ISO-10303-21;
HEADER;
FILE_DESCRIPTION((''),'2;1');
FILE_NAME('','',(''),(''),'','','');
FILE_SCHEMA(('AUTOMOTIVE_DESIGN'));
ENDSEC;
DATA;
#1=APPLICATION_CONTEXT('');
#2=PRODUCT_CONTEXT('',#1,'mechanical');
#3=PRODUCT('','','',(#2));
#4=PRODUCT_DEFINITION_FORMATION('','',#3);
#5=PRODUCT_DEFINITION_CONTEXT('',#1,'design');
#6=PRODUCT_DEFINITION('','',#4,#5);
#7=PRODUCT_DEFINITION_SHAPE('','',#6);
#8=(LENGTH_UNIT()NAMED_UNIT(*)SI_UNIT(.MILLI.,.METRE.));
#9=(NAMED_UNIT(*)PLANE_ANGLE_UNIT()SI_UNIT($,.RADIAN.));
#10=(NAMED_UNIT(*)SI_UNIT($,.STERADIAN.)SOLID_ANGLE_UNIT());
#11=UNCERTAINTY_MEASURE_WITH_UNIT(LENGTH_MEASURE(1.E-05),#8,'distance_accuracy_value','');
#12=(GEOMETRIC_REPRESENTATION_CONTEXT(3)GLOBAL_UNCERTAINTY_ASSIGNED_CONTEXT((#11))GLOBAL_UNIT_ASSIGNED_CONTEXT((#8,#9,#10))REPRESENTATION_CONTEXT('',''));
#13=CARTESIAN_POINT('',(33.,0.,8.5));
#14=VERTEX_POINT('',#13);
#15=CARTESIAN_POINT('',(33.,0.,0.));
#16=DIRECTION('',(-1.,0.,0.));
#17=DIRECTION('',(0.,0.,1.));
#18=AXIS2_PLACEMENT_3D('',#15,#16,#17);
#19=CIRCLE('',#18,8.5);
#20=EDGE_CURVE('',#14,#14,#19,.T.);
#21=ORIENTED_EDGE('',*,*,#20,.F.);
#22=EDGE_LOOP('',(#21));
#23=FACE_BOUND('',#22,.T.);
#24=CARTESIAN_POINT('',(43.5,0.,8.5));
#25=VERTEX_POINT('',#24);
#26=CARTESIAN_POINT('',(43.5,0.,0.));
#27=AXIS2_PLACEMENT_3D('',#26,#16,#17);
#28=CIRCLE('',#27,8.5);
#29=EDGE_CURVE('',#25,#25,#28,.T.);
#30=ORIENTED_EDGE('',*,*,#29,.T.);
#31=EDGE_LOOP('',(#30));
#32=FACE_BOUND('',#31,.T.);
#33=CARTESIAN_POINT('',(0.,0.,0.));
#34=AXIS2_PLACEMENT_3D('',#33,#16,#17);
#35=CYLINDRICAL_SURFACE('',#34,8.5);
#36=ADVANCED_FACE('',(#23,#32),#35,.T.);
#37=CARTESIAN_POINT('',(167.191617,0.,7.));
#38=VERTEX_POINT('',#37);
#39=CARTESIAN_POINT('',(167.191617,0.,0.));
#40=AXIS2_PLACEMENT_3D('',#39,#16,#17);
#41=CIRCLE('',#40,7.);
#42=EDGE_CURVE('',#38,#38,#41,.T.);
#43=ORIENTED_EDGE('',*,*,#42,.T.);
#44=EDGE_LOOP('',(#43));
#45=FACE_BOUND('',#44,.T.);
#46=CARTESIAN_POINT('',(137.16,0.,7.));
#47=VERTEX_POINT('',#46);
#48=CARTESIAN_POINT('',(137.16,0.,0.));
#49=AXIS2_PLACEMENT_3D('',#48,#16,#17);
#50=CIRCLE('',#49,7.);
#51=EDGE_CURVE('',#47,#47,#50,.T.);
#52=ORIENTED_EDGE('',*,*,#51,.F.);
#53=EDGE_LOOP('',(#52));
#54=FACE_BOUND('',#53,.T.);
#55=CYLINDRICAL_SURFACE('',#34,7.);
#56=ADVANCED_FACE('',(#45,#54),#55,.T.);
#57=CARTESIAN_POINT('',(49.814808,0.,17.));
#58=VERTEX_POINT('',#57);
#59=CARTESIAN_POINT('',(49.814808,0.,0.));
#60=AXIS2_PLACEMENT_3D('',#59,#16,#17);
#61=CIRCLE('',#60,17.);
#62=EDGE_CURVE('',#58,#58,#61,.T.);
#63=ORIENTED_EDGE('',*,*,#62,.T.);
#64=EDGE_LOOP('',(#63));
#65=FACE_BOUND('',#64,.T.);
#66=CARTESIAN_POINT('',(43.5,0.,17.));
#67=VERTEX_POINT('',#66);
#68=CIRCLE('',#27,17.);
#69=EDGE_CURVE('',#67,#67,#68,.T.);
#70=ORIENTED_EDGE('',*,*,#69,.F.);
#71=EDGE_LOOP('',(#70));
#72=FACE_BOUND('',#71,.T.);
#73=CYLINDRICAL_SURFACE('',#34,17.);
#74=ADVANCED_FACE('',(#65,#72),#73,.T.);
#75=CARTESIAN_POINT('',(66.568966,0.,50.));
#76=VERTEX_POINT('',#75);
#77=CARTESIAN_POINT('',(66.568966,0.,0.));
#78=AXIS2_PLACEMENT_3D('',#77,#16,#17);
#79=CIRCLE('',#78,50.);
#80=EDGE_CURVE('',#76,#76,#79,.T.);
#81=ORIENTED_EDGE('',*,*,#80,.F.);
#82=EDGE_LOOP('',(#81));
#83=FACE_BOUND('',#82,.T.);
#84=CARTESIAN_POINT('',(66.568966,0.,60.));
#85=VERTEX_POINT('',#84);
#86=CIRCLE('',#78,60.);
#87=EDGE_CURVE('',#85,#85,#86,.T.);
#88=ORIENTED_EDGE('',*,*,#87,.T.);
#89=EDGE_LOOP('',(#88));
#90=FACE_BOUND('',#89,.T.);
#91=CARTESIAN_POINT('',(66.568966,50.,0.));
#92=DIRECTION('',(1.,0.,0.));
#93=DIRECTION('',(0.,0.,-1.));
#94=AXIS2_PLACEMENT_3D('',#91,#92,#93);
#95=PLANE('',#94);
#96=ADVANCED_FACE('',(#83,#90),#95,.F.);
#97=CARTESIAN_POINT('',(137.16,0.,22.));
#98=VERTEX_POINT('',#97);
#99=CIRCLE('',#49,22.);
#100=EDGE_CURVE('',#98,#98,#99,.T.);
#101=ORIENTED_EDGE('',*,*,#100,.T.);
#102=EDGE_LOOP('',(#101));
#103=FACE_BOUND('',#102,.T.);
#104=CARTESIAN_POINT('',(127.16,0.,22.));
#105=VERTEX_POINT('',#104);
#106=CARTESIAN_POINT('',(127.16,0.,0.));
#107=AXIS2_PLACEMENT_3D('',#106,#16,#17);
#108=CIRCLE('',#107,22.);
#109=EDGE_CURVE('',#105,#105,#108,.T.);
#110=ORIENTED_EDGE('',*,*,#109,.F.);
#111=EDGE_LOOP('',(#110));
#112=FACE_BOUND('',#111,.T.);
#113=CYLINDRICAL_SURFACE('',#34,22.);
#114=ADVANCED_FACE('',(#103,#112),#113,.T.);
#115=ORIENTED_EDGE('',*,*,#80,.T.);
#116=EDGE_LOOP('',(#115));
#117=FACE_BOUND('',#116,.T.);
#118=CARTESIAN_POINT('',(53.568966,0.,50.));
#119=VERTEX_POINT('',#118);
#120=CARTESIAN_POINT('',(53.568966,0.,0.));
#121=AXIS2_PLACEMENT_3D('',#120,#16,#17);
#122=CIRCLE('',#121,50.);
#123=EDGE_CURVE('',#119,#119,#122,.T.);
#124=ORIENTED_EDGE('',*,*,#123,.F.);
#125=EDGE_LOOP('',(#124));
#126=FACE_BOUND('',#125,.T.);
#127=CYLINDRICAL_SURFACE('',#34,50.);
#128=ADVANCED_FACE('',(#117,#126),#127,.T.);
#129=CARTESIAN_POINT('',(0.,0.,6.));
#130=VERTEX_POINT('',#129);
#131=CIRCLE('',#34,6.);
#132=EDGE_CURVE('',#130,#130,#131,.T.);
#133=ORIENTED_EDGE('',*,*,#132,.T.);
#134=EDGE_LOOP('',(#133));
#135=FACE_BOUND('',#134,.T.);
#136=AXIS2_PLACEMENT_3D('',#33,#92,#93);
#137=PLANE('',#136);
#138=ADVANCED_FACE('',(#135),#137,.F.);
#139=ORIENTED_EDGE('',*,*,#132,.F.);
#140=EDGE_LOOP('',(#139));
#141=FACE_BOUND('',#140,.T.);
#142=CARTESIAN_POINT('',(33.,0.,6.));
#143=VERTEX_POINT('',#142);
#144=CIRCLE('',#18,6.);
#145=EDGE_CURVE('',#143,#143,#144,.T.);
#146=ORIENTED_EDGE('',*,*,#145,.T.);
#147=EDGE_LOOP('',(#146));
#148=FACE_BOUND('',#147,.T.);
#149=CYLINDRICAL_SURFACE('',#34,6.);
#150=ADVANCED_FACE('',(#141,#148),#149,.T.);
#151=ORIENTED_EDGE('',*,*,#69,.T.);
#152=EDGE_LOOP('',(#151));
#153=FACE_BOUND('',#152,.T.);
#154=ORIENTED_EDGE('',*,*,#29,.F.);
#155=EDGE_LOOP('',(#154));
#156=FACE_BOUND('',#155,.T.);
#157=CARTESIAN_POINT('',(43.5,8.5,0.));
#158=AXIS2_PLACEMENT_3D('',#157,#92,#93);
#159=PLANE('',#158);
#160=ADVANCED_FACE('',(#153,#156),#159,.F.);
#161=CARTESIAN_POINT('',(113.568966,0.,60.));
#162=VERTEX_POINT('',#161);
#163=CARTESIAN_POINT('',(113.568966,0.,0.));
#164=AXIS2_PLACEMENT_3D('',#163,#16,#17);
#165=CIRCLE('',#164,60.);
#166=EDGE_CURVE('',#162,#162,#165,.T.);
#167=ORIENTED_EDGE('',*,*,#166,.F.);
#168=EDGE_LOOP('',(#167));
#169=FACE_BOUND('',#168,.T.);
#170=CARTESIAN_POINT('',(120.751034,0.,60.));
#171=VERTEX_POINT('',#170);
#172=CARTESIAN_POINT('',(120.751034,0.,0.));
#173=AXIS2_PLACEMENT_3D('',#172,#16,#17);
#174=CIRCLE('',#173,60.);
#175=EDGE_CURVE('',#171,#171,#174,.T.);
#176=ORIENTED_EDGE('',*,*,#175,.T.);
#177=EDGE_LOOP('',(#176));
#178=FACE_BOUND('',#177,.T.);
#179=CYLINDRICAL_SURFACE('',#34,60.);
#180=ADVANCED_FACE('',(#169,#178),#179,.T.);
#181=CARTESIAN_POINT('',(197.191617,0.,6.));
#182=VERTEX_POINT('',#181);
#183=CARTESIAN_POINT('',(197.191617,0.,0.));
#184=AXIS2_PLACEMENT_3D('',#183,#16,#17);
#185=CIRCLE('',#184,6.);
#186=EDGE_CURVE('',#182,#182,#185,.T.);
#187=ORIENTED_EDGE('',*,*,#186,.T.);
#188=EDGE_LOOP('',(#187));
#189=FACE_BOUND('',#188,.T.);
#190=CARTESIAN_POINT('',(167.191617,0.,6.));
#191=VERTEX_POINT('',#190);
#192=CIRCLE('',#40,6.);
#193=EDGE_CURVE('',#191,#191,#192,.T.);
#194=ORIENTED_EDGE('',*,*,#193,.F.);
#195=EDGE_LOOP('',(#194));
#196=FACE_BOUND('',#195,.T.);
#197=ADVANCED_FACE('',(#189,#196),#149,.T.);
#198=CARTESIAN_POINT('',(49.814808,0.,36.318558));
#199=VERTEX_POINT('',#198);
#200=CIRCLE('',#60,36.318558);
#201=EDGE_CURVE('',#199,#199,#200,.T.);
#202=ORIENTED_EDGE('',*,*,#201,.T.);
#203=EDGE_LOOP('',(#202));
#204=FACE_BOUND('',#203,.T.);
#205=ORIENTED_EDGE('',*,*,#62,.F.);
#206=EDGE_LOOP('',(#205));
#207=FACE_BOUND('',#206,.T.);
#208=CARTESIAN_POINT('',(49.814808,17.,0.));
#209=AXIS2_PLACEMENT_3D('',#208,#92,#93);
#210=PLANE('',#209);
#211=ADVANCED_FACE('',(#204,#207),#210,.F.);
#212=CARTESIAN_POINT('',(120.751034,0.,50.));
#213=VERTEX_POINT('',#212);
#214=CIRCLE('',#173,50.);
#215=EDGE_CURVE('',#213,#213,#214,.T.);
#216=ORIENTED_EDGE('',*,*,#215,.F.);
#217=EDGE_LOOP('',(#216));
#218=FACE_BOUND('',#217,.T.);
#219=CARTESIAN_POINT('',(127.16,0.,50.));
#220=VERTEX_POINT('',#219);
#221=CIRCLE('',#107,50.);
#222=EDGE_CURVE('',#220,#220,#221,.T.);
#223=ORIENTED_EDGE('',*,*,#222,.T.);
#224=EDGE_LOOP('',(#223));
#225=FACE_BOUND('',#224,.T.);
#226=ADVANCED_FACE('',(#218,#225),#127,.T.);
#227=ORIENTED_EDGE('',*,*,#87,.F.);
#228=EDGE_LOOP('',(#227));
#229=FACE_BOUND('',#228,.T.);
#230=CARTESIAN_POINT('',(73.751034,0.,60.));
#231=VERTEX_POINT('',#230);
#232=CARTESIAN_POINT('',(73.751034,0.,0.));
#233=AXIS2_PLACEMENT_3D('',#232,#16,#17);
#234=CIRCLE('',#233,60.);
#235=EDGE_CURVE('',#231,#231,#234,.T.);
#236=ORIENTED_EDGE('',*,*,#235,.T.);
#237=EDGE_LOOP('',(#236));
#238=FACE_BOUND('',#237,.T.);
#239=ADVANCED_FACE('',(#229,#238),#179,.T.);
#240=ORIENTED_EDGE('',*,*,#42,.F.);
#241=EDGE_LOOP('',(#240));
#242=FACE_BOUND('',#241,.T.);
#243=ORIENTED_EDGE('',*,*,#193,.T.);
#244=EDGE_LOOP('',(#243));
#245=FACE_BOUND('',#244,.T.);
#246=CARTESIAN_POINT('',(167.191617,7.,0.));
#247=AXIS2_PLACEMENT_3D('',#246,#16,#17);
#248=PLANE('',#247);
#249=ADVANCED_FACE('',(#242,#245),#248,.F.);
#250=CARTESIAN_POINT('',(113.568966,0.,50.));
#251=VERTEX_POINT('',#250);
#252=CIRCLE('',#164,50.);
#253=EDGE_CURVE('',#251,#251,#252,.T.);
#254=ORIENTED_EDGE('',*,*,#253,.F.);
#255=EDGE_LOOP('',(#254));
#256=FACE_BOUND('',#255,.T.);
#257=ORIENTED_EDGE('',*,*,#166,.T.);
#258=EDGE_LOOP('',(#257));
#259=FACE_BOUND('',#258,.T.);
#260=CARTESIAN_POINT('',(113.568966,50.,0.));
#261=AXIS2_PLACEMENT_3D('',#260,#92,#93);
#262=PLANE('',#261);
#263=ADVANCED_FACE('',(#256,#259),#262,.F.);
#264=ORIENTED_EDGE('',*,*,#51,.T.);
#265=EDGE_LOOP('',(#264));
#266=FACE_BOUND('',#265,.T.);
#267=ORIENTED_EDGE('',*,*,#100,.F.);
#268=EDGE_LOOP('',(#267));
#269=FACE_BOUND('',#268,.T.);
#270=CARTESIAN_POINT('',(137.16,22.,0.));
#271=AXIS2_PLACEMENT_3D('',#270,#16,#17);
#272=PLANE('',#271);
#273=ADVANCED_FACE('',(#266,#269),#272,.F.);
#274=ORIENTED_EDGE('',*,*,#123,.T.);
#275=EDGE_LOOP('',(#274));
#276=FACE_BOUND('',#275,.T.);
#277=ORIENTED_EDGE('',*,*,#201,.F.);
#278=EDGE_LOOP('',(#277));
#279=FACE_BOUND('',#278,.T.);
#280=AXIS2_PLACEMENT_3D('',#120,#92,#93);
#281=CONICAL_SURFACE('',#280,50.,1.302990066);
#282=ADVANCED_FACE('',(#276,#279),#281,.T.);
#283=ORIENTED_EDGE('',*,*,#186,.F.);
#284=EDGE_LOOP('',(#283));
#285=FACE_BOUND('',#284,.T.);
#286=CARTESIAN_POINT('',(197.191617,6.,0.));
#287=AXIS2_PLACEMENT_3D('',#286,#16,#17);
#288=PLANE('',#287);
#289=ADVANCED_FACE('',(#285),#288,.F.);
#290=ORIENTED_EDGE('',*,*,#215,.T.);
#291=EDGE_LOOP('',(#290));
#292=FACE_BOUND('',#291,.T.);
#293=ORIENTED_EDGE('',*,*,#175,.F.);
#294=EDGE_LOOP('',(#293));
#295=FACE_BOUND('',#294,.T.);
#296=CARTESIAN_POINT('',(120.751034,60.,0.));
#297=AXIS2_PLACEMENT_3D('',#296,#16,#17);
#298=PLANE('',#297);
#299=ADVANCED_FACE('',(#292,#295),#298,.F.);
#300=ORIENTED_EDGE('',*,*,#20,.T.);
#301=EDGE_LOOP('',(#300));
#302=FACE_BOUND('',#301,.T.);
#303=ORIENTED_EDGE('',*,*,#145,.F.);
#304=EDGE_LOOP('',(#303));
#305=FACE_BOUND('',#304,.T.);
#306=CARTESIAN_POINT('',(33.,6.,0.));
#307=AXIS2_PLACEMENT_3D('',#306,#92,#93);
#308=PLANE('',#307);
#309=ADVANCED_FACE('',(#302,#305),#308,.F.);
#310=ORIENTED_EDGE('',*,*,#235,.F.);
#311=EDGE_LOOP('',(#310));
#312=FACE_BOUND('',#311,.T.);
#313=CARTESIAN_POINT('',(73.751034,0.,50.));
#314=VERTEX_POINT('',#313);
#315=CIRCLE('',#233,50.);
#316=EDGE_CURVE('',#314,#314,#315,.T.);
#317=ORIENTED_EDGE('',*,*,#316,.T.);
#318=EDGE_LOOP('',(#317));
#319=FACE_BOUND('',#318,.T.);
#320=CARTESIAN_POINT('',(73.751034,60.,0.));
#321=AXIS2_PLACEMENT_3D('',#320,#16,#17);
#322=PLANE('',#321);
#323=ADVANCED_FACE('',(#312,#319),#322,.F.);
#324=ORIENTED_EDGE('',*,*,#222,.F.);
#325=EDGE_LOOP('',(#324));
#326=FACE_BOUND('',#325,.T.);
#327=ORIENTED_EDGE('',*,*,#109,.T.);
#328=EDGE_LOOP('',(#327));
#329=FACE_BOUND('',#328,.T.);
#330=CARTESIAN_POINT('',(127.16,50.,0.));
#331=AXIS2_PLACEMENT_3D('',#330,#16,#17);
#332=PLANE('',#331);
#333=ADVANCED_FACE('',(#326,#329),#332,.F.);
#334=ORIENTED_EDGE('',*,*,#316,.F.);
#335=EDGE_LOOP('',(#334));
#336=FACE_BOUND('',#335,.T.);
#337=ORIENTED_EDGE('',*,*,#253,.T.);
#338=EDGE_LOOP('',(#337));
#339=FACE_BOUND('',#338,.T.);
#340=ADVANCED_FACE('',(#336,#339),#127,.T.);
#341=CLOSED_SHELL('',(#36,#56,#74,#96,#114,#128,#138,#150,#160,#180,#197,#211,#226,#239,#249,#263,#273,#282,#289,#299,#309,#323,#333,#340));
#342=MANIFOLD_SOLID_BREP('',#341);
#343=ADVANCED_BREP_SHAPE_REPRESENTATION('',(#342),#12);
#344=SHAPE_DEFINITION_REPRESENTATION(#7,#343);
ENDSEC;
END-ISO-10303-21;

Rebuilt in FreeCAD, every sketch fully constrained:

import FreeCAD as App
import Part
import Sketcher
from FreeCAD import Vector

doc = App.newDocument("Part")
body = doc.addObject("PartDesign::Body", "Body")

# Sketch on XY plane
sketch1 = body.newObject("Sketcher::SketchObject", "Sketch")
sketch1.AttachmentSupport = (doc.getObject("XY_Plane"), [""])
sketch1.MapMode = "FlatFace"
sketch1.addGeometry([
    Part.LineSegment(Vector(0, 6, 0), Vector(0, 0, 0)),  # 0
    Part.LineSegment(Vector(0, 0, 0), Vector(197.2, 0, 0)),  # 1
    Part.LineSegment(Vector(197.2, 0, 0), Vector(197.2, 6, 0)),  # 2
    Part.LineSegment(Vector(197.2, 6, 0), Vector(167.2, 6, 0)),  # 3
    Part.LineSegment(Vector(167.2, 6, 0), Vector(167.2, 7, 0)),  # 4
    Part.LineSegment(Vector(167.2, 7, 0), Vector(137.2, 7, 0)),  # 5
    Part.LineSegment(Vector(137.2, 7, 0), Vector(137.2, 22, 0)),  # 6
    Part.LineSegment(Vector(137.2, 22, 0), Vector(127.2, 22, 0)),  # 7
    Part.LineSegment(Vector(127.2, 22, 0), Vector(127.2, 50, 0)),  # 8
    Part.LineSegment(Vector(127.2, 50, 0), Vector(120.8, 50, 0)),  # 9
    Part.LineSegment(Vector(120.8, 50, 0), Vector(120.8, 60, 0)),  # 10
    Part.LineSegment(Vector(120.8, 60, 0), Vector(113.6, 60, 0)),  # 11
    Part.LineSegment(Vector(113.6, 60, 0), Vector(113.6, 50, 0)),  # 12
    Part.LineSegment(Vector(113.6, 50, 0), Vector(73.8, 50, 0)),  # 13
    Part.LineSegment(Vector(73.8, 50, 0), Vector(73.8, 60, 0)),  # 14
    Part.LineSegment(Vector(73.8, 60, 0), Vector(66.6, 60, 0)),  # 15
    Part.LineSegment(Vector(66.6, 60, 0), Vector(66.6, 50, 0)),  # 16
    Part.LineSegment(Vector(66.6, 50, 0), Vector(53.6, 50, 0)),  # 17
    Part.LineSegment(Vector(53.6, 50, 0), Vector(49.8, 36.3, 0)),  # 18
    Part.LineSegment(Vector(49.8, 36.3, 0), Vector(49.8, 17, 0)),  # 19
    Part.LineSegment(Vector(49.8, 17, 0), Vector(43.5, 17, 0)),  # 20
    Part.LineSegment(Vector(43.5, 17, 0), Vector(43.5, 8.5, 0)),  # 21
    Part.LineSegment(Vector(43.5, 8.5, 0), Vector(33, 8.5, 0)),  # 22
    Part.LineSegment(Vector(33, 8.5, 0), Vector(33, 6, 0)),  # 23
    Part.LineSegment(Vector(33, 6, 0), Vector(0, 6, 0)),  # 24
], False)
sketch1.addConstraint([
    Sketcher.Constraint("Coincident", 0, 2, 1, 1),
    Sketcher.Constraint("Coincident", 1, 2, 2, 1),
    Sketcher.Constraint("Coincident", 2, 2, 3, 1),
    Sketcher.Constraint("Coincident", 3, 2, 4, 1),
    Sketcher.Constraint("Coincident", 4, 2, 5, 1),
    Sketcher.Constraint("Coincident", 5, 2, 6, 1),
    Sketcher.Constraint("Coincident", 6, 2, 7, 1),
    Sketcher.Constraint("Coincident", 7, 2, 8, 1),
    Sketcher.Constraint("Coincident", 8, 2, 9, 1),
    Sketcher.Constraint("Coincident", 9, 2, 10, 1),
    Sketcher.Constraint("Coincident", 10, 2, 11, 1),
    Sketcher.Constraint("Coincident", 11, 2, 12, 1),
    Sketcher.Constraint("Coincident", 12, 2, 13, 1),
    Sketcher.Constraint("Coincident", 13, 2, 14, 1),
    Sketcher.Constraint("Coincident", 14, 2, 15, 1),
    Sketcher.Constraint("Coincident", 15, 2, 16, 1),
    Sketcher.Constraint("Coincident", 16, 2, 17, 1),
    Sketcher.Constraint("Coincident", 17, 2, 18, 1),
    Sketcher.Constraint("Coincident", 18, 2, 19, 1),
    Sketcher.Constraint("Coincident", 19, 2, 20, 1),
    Sketcher.Constraint("Coincident", 20, 2, 21, 1),
    Sketcher.Constraint("Coincident", 21, 2, 22, 1),
    Sketcher.Constraint("Coincident", 22, 2, 23, 1),
    Sketcher.Constraint("Coincident", 23, 2, 24, 1),
    Sketcher.Constraint("Coincident", 24, 2, 0, 1),
    Sketcher.Constraint("Vertical", 0),
    Sketcher.Constraint("Horizontal", 1),
    Sketcher.Constraint("Vertical", 2),
    Sketcher.Constraint("Horizontal", 3),
    Sketcher.Constraint("Vertical", 4),
    Sketcher.Constraint("Horizontal", 5),
    Sketcher.Constraint("Vertical", 6),
    Sketcher.Constraint("Horizontal", 7),
    Sketcher.Constraint("Vertical", 8),
    Sketcher.Constraint("Horizontal", 9),
    Sketcher.Constraint("Vertical", 10),
    Sketcher.Constraint("Horizontal", 11),
    Sketcher.Constraint("Vertical", 12),
    Sketcher.Constraint("Horizontal", 13),
    Sketcher.Constraint("Vertical", 14),
    Sketcher.Constraint("Horizontal", 15),
    Sketcher.Constraint("Vertical", 16),
    Sketcher.Constraint("Horizontal", 17),
    Sketcher.Constraint("Vertical", 19),
    Sketcher.Constraint("Horizontal", 20),
    Sketcher.Constraint("Vertical", 21),
    Sketcher.Constraint("Horizontal", 22),
    Sketcher.Constraint("Vertical", 23),
    Sketcher.Constraint("Horizontal", 24),
    Sketcher.Constraint("Coincident", 0, 2, -1, 1),
    Sketcher.Constraint("Horizontal", 9, 2, 12, 2),
    Sketcher.Constraint("Horizontal", 11, 2, 14, 2),
    Sketcher.Constraint("Horizontal", 13, 2, 16, 2),
    Sketcher.Constraint("Horizontal", 3, 2, 23, 2),
    Sketcher.Constraint("Equal", 11, 15),
    Sketcher.Constraint("Equal", 7, 10),
    Sketcher.Constraint("DistanceX", 3, 2, 3, 1, 30.0),
    Sketcher.Constraint("DistanceX", 7, 2, 7, 1, 10.0),
    Sketcher.Constraint("DistanceX", 17, 2, 17, 1, 13.0),
    Sketcher.Constraint("DistanceX", 24, 2, 24, 1, 33.0),
    Sketcher.Constraint("DistanceY", 0, 2, 0, 1, 6.0),
    Sketcher.Constraint("DistanceY", 4, 1, 4, 2, 1.0),
    Sketcher.Constraint("DistanceY", 6, 1, 6, 2, 15.0),
    Sketcher.Constraint("DistanceY", 8, 1, 8, 2, 28.0),
    Sketcher.Constraint("DistanceX", 22, 2, 22, 1, 10.5),
    Sketcher.Constraint("DistanceY", 21, 2, 21, 1, 8.5),
    Sketcher.Constraint("DistanceY", 23, 2, 23, 1, 2.5),
    Sketcher.Constraint("DistanceX", 13, 2, 9, 2, 47.0),
    Sketcher.Constraint("DistanceX", -1, 1, 5, 2, 137.16),
    Sketcher.Constraint("DistanceX", 11, 2, 11, 1, 7.182069),
    Sketcher.Constraint("DistanceX", 20, 2, 20, 1, 6.314808),
    Sketcher.Constraint("DistanceY", 19, 2, 19, 1, 19.318558),
    Sketcher.Constraint("Distance", 18, 14.187161),
    Sketcher.Constraint("DistanceX", 1, 1, 1, 2, 197.191617),
])
revolution = body.newObject("PartDesign::Revolution", "Revolution")
revolution.Profile = sketch1
revolution.ReferenceAxis = (sketch1, ["H_Axis"])
revolution.Angle = 360

doc.recompute()
